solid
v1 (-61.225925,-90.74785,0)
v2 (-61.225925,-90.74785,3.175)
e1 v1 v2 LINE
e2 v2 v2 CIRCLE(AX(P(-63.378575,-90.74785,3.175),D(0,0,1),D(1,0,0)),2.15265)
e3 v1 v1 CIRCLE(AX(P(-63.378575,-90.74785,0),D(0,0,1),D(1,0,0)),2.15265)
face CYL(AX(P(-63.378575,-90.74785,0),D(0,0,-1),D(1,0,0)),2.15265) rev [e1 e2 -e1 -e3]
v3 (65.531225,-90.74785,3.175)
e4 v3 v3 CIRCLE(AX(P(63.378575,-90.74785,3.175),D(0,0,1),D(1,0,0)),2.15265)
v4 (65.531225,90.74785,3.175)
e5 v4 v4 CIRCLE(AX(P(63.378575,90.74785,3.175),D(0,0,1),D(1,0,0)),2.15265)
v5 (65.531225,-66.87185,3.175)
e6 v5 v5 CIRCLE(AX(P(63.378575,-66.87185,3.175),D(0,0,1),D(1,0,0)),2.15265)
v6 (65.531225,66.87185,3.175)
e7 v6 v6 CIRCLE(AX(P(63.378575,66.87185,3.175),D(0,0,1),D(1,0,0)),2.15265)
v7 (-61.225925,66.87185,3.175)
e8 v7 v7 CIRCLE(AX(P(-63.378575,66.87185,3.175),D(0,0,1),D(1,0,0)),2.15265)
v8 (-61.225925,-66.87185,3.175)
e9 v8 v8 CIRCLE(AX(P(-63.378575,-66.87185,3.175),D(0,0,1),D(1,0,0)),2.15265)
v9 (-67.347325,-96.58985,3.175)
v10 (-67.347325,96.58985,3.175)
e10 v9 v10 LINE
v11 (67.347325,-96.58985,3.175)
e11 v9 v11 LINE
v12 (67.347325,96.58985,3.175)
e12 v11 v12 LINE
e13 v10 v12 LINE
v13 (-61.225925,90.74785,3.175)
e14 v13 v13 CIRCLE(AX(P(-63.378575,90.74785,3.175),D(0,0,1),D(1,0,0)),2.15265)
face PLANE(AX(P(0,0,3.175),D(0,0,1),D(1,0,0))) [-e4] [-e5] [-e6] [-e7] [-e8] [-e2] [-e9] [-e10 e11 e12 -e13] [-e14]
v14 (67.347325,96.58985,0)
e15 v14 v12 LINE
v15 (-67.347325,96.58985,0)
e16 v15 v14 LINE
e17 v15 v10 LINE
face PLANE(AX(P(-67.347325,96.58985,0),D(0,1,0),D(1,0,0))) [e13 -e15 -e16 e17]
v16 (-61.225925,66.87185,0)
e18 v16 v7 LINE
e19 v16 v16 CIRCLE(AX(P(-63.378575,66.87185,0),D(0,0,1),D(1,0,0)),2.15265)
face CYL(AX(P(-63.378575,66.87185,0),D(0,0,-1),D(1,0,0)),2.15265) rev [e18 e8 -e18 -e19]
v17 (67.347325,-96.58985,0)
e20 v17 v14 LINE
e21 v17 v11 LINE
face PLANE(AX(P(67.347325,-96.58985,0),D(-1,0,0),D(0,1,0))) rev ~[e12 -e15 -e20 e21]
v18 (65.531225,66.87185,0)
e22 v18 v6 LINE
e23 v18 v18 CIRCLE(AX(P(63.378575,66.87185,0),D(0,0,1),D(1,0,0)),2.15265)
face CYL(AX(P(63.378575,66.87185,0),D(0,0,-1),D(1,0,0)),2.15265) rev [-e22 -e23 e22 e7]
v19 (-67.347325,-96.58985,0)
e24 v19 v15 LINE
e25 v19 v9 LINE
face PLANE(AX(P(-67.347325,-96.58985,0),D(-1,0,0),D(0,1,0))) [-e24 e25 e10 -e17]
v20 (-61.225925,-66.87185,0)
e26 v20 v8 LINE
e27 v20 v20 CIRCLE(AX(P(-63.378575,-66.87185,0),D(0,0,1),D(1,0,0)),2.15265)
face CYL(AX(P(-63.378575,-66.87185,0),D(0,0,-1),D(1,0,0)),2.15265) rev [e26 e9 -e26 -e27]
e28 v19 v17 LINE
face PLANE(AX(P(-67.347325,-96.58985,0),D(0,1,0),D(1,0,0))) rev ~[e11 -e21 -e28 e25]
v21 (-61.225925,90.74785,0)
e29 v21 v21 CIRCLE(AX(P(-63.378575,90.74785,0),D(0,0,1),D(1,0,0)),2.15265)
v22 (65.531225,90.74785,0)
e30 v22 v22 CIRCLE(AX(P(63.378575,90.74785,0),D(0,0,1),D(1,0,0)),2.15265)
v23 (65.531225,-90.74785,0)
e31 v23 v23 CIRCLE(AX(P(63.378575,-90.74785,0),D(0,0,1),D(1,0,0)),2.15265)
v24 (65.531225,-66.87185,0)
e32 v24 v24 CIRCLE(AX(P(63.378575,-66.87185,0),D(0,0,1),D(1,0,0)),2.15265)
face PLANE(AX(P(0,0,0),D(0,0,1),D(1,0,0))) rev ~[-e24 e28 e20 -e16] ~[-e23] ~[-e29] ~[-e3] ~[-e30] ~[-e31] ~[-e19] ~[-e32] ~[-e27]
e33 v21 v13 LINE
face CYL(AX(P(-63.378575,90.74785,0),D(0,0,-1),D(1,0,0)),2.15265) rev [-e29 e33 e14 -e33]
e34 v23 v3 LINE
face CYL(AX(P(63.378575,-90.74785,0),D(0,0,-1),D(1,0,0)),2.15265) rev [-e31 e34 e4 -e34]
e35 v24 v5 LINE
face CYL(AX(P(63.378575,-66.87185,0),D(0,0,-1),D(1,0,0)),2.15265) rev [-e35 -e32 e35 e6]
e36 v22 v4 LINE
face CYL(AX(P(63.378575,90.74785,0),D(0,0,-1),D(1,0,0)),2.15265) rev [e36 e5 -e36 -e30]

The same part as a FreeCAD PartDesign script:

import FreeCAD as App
import Part
import Sketcher

V = App.Vector
Q = App.Units.Quantity


def add_polygon(sketch, points):
    """Adds a closed chain of lines whose ends are joined by coincident constraints."""
    first, n = sketch.GeometryCount, len(points)
    for a, b in zip(points, points[1:] + points[:1]):
        sketch.addGeometry(Part.LineSegment(App.Vector(*a, 0), App.Vector(*b, 0)), False)
    for i in range(n):
        sketch.addConstraint(Sketcher.Constraint("Coincident", first + i, 2, first + (i + 1) % n, 1))

doc = App.newDocument("Part")
body = doc.addObject("PartDesign::Body", "Body")

sketch1 = doc.addObject("Sketcher::SketchObject", "Sketch")
body.addObject(sketch1)
sketch1.AttachmentSupport = (doc.XY_Plane, [""])
sketch1.MapMode = "FlatFace"
add_polygon(sketch1, [(-67.3, 96.6), (-67.3, -96.6), (67.3, -96.6), (67.3, 96.6)])
sketch1.addGeometry(Part.Circle(V(-63.4, -90.7, 0), V(0, 0, 1), 2.2), False)
sketch1.addGeometry(Part.Circle(V(-63.4, -66.9, 0), V(0, 0, 1), 2.2), False)
sketch1.addGeometry(Part.Circle(V(63.4, -90.7, 0), V(0, 0, 1), 2.2), False)
sketch1.addGeometry(Part.Circle(V(63.4, -66.9, 0), V(0, 0, 1), 2.2), False)
sketch1.addGeometry(Part.Circle(V(-63.4, 66.9, 0), V(0, 0, 1), 2.2), False)
sketch1.addGeometry(Part.Circle(V(-63.4, 90.7, 0), V(0, 0, 1), 2.2), False)
sketch1.addGeometry(Part.Circle(V(63.4, 66.9, 0), V(0, 0, 1), 2.2), False)
sketch1.addGeometry(Part.Circle(V(63.4, 90.7, 0), V(0, 0, 1), 2.2), False)
sketch1.addConstraint([
    Sketcher.Constraint("Vertical", 0),
    Sketcher.Constraint("Horizontal", 1),
    Sketcher.Constraint("Vertical", 2),
    Sketcher.Constraint("Horizontal", 3),
    Sketcher.Constraint("Equal", 4, 5),
    Sketcher.Constraint("Equal", 5, 6),
    Sketcher.Constraint("Equal", 6, 7),
    Sketcher.Constraint("Equal", 7, 8),
    Sketcher.Constraint("Equal", 8, 9),
    Sketcher.Constraint("Equal", 9, 10),
    Sketcher.Constraint("Equal", 10, 11),
    Sketcher.Constraint("Symmetric", 7, 3, 8, 3, -1, 1),
    Sketcher.Constraint("Symmetric", 6, 3, 9, 3, -1, 1),
    Sketcher.Constraint("Symmetric", 5, 3, 10, 3, -1, 1),
    Sketcher.Constraint("Symmetric", 4, 3, 11, 3, -1, 1),
    Sketcher.Constraint("Symmetric", 0, 2, 2, 2, -1, 1),
    Sketcher.Constraint("Symmetric", 4, 3, 6, 3, -2),
    Sketcher.Constraint("Symmetric", 5, 3, 7, 3, -2),
    Sketcher.Constraint("Vertical", 4, 3, 5, 3),
    Sketcher.Constraint("Diameter", 4, Q("0.1695 in")),
    Sketcher.Constraint("DistanceY", 4, 3, 5, 3, Q("0.94 in")),
    Sketcher.Constraint("DistanceY", 0, 2, 4, 3, Q("0.23 in")),
    Sketcher.Constraint("DistanceY", 0, 2, 0, 1, Q("7.6055 in")),
    Sketcher.Constraint("DistanceX", 0, 2, 4, 3, Q("0.15625 in")),
    Sketcher.Constraint("DistanceX", 1, 1, 1, 2, Q("134.69465 mm")),
])
pad1 = doc.addObject("PartDesign::Pad", "Pad")
body.addObject(pad1)
pad1.Profile = sketch1
pad1.Length = Q("0.125 in")

doc.recompute()
